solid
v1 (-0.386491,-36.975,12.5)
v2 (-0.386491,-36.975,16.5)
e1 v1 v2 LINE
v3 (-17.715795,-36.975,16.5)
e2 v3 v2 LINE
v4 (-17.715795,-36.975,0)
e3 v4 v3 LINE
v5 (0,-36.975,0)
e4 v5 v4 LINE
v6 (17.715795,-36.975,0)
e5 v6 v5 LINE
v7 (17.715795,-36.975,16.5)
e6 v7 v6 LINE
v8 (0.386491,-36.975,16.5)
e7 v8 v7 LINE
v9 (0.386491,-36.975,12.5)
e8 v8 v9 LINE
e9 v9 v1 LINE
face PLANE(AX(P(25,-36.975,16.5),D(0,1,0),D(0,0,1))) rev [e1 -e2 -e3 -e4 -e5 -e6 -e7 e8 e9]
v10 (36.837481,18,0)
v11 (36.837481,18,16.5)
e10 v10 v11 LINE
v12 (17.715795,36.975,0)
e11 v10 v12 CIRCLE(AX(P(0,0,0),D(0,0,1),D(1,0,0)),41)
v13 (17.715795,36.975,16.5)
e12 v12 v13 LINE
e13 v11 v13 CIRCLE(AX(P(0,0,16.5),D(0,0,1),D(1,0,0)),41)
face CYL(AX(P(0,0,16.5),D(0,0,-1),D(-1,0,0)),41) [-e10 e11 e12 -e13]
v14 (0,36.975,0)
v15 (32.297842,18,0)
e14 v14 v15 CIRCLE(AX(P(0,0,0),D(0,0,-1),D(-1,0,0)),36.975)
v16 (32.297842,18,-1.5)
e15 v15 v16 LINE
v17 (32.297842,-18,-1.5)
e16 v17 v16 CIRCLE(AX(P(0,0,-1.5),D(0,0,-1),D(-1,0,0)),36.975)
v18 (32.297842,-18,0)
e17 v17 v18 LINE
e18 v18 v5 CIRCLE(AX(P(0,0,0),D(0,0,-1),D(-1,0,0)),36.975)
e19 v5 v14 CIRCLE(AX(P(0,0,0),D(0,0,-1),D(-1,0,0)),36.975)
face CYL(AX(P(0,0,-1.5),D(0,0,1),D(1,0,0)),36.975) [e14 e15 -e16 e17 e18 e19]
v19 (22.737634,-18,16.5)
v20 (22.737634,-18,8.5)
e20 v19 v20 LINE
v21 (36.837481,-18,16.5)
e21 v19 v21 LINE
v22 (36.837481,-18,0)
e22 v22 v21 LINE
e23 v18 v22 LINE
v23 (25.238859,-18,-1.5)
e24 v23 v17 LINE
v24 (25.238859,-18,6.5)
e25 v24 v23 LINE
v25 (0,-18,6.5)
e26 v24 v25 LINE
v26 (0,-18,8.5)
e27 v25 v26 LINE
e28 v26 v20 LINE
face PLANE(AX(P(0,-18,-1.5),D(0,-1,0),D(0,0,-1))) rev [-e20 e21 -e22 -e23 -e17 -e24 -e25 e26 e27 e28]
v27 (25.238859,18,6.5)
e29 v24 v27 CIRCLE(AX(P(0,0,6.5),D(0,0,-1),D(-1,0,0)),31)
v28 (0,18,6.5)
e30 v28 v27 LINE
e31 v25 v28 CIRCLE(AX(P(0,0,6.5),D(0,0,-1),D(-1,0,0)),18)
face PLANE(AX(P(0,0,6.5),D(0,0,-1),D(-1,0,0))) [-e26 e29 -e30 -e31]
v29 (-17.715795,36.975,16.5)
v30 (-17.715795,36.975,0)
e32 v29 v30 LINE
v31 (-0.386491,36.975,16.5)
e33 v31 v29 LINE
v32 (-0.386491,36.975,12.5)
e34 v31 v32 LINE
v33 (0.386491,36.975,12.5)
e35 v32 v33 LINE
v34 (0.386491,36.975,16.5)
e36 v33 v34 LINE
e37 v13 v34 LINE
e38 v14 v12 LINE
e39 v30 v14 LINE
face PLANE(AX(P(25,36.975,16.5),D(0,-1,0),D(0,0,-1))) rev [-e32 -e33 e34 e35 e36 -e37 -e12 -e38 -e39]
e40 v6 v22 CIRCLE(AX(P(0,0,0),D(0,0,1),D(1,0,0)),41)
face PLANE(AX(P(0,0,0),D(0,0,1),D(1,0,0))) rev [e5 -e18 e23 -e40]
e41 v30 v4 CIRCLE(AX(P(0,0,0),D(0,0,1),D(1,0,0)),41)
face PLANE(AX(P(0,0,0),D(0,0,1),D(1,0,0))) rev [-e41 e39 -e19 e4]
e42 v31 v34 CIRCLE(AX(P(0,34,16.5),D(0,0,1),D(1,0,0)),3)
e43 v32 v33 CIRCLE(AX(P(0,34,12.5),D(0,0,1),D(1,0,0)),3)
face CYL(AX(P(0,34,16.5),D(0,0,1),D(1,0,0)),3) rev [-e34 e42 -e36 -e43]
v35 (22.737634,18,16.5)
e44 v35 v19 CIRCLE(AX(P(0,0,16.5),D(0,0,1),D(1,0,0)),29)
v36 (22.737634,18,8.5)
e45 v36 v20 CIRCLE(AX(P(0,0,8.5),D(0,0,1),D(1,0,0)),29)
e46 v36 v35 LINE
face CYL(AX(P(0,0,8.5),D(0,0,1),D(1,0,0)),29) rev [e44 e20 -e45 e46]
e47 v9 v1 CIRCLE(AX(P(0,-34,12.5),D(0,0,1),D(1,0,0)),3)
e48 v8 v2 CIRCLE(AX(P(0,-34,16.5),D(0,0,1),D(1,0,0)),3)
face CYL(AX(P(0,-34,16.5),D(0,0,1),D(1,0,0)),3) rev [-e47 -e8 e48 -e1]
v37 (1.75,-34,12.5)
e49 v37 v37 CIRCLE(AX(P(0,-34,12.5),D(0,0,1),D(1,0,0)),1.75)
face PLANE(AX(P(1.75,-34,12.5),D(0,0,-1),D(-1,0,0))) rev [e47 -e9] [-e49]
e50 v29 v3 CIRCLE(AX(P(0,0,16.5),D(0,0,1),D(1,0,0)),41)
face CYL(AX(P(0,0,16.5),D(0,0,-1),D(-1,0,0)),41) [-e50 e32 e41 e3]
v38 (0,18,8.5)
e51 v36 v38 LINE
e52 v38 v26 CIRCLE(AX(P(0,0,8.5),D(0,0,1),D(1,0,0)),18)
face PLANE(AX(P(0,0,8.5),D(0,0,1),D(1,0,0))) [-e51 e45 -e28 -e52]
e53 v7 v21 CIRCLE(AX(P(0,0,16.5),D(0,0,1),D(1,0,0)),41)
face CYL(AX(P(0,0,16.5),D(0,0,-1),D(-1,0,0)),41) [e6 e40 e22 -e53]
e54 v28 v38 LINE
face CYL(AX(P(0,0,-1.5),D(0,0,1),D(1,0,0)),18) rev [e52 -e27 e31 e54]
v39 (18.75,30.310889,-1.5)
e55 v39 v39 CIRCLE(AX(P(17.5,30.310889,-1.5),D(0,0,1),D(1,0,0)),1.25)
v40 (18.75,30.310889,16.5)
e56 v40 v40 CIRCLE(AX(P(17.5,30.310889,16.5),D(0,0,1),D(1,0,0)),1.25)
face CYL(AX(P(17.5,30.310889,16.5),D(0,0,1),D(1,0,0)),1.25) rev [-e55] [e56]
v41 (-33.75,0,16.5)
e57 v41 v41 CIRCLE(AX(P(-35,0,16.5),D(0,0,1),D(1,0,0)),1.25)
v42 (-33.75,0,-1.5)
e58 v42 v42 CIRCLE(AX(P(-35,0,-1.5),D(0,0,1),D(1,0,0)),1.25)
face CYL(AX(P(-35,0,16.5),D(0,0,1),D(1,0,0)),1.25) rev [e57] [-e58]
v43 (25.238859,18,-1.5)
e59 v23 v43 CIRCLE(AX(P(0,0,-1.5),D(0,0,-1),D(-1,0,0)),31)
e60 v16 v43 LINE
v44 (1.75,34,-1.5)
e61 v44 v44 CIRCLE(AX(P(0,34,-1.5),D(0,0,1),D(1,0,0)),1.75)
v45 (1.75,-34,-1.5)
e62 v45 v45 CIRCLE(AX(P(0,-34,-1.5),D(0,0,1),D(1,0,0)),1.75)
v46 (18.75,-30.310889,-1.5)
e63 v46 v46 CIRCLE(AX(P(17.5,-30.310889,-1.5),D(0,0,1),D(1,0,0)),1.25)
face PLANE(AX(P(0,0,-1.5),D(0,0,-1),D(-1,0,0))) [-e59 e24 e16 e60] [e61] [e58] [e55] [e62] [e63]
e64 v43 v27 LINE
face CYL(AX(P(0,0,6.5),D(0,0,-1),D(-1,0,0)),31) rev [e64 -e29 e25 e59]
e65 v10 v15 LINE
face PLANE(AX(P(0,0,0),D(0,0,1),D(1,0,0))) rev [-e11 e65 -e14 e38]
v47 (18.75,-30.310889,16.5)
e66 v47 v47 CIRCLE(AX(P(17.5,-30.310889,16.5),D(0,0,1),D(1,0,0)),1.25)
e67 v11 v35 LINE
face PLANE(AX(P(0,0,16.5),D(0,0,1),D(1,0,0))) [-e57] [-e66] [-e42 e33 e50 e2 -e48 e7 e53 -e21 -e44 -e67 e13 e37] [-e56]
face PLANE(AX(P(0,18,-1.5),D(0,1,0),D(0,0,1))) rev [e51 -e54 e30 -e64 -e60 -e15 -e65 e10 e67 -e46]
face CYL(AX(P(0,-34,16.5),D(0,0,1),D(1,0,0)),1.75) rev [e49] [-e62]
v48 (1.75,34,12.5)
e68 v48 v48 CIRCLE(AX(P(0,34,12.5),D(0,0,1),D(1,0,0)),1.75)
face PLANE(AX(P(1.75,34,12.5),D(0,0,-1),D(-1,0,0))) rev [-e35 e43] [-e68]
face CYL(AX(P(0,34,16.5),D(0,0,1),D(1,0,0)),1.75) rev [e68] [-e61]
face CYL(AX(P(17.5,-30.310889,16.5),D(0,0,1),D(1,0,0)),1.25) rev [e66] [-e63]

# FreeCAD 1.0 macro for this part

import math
import FreeCAD as App
import Part
import Sketcher

V = App.Vector

doc = App.newDocument("Part")
params = doc.addObject("Spreadsheet::Sheet", "Params")
for row, (alias, value) in enumerate([
    ("sketch1_diameter", "82 mm"),
    ("pad1_length", "16.5 mm"),
    ("sketch2_diameter", "73.95 mm"),
    ("pad2_length", "1.5 mm"),
    ("sketch3_width", "50 mm"),
    ("sketch4_diameter", "62 mm"),
    ("pocket2_length", "8 mm"),
    ("sketch5_diameter", "58 mm"),
    ("pocket3_length", "8 mm"),
    ("sketch6_radius", "18 mm"),
    ("sketch6_radius2", "41 mm"),
    ("sketch7_diameter", "3.5 mm"),
    ("hole_diameter", "3.5 mm"),
    ("hole_cbore_diameter", "6 mm"),
    ("hole_cbore_depth", "4 mm"),
    ("sketch8_diameter", "2.5 mm"),
    ("hole2_diameter", "2.5 mm"),
], start=1):
    params.set(f"A{row}", alias)
    params.set(f"B{row}", "=" + value)
    params.setAlias(f"B{row}", alias)

body = doc.addObject("PartDesign::Body", "Body")

sketch1 = doc.addObject("Sketcher::SketchObject", "Sketch")
body.addObject(sketch1)
sketch1.AttachmentSupport = (doc.XY_Plane, [""])
sketch1.MapMode = "FlatFace"
sketch1.addGeometry(Part.Circle(V(0, 0, 0), V(0, 0, 1), 41), False)
sketch1.addConstraint(Sketcher.Constraint("Coincident", 0, 3, -1, 1))
sketch1.addConstraint(Sketcher.Constraint("Diameter", 0, 82.0))
sketch1.setExpression("Constraints[1]", "Params.sketch1_diameter")
pad1 = doc.addObject("PartDesign::Pad", "Pad")
body.addObject(pad1)
pad1.Profile = sketch1
pad1.setExpression("Length", "Params.pad1_length")

sketch2 = doc.addObject("Sketcher::SketchObject", "Sketch001")
body.addObject(sketch2)
sketch2.AttachmentSupport = (doc.XY_Plane, [""])
sketch2.MapMode = "FlatFace"
sketch2.addGeometry(Part.Circle(V(0, 0, 0), V(0, 0, 1), 36.975), False)
sketch2.addConstraint(Sketcher.Constraint("Coincident", 0, 3, -1, 1))
sketch2.addConstraint(Sketcher.Constraint("Diameter", 0, 73.95))
sketch2.setExpression("Constraints[1]", "Params.sketch2_diameter")
pad2 = doc.addObject("PartDesign::Pad", "Pad001")
body.addObject(pad2)
pad2.Profile = sketch2
pad2.setExpression("Length", "Params.pad2_length")
pad2.Reversed = True

sketch3 = doc.addObject("Sketcher::SketchObject", "Sketch002")
body.addObject(sketch3)
sketch3.AttachmentSupport = (doc.XY_Plane, [""])
sketch3.MapMode = "FlatFace"
sketch3.AttachmentOffset = App.Placement(V(0, 0, -1.5), App.Rotation())
sketch3.addGeometry(Part.LineSegment(V(25, 43.815022, 0), V(25, 36.975, 0)), False)
sketch3.addGeometry(Part.LineSegment(V(25, 36.975, 0), V(-25, 36.975, 0)), False)
sketch3.addGeometry(Part.LineSegment(V(-25, 36.975, 0), V(-25, 43.815022, 0)), False)
sketch3.addGeometry(Part.LineSegment(V(-25, 43.815022, 0), V(25, 43.815022, 0)), False)
sketch3.addGeometry(Part.LineSegment(V(25, -36.975, 0), V(25, -43.815022, 0)), False)
sketch3.addGeometry(Part.LineSegment(V(25, -43.815022, 0), V(-25, -43.815022, 0)), False)
sketch3.addGeometry(Part.LineSegment(V(-25, -43.815022, 0), V(-25, -36.975, 0)), False)
sketch3.addGeometry(Part.LineSegment(V(-25, -36.975, 0), V(25, -36.975, 0)), False)
sketch3.addConstraint(Sketcher.Constraint("Coincident", 0, 2, 1, 1))
sketch3.addConstraint(Sketcher.Constraint("Coincident", 1, 2, 2, 1))
sketch3.addConstraint(Sketcher.Constraint("Coincident", 2, 2, 3, 1))
sketch3.addConstraint(Sketcher.Constraint("Coincident", 3, 2, 0, 1))
sketch3.addConstraint(Sketcher.Constraint("Coincident", 4, 2, 5, 1))
sketch3.addConstraint(Sketcher.Constraint("Coincident", 5, 2, 6, 1))
sketch3.addConstraint(Sketcher.Constraint("Coincident", 6, 2, 7, 1))
sketch3.addConstraint(Sketcher.Constraint("Coincident", 7, 2, 4, 1))
sketch3.addConstraint(Sketcher.Constraint("Vertical", 0))
sketch3.addConstraint(Sketcher.Constraint("Horizontal", 1))
sketch3.addConstraint(Sketcher.Constraint("Vertical", 2))
sketch3.addConstraint(Sketcher.Constraint("Horizontal", 3))
sketch3.addConstraint(Sketcher.Constraint("Vertical", 4))
sketch3.addConstraint(Sketcher.Constraint("Horizontal", 5))
sketch3.addConstraint(Sketcher.Constraint("Vertical", 6))
sketch3.addConstraint(Sketcher.Constraint("Horizontal", 7))
sketch3.addConstraint(Sketcher.Constraint("Symmetric", 2, 2, 4, 2, -1, 1))
sketch3.addConstraint(Sketcher.Constraint("Symmetric", 0, 2, 6, 2, -1, 1))
sketch3.addConstraint(Sketcher.Constraint("Vertical", 3, 2, 4, 2))
sketch3.addConstraint(Sketcher.Constraint("DistanceX", 1, 2, 1, 1, 50.0))
sketch3.addConstraint(Sketcher.Constraint("DistanceY", 6, 2, 1, 2, 73.95))
sketch3.addConstraint(Sketcher.Constraint("DistanceY", 0, 2, 0, 1, 6.840022))
sketch3.setExpression("Constraints[19]", "Params.sketch3_width")
pocket1 = doc.addObject("PartDesign::Pocket", "Pocket")
body.addObject(pocket1)
pocket1.Profile = sketch3
pocket1.Type = "ThroughAll"
pocket1.Reversed = True

sketch4 = doc.addObject("Sketcher::SketchObject", "Sketch003")
body.addObject(sketch4)
sketch4.AttachmentSupport = (doc.XY_Plane, [""])
sketch4.MapMode = "FlatFace"
sketch4.AttachmentOffset = App.Placement(V(0, 0, -1.5), App.Rotation())
sketch4.addGeometry(Part.Circle(V(0, 0, 0), V(0, 0, 1), 31), False)
sketch4.addConstraint(Sketcher.Constraint("Coincident", 0, 3, -1, 1))
sketch4.addConstraint(Sketcher.Constraint("Diameter", 0, 62.0))
sketch4.setExpression("Constraints[1]", "Params.sketch4_diameter")
pocket2 = doc.addObject("PartDesign::Pocket", "Pocket001")
body.addObject(pocket2)
pocket2.Profile = sketch4
pocket2.setExpression("Length", "Params.pocket2_length")
pocket2.Reversed = True

sketch5 = doc.addObject("Sketcher::SketchObject", "Sketch004")
body.addObject(sketch5)
sketch5.AttachmentSupport = (doc.XY_Plane, [""])
sketch5.MapMode = "FlatFace"
sketch5.AttachmentOffset = App.Placement(V(0, 0, 16.5), App.Rotation())
sketch5.addGeometry(Part.Circle(V(0, 0, 0), V(0, 0, 1), 29), False)
sketch5.addConstraint(Sketcher.Constraint("Coincident", 0, 3, -1, 1))
sketch5.addConstraint(Sketcher.Constraint("Diameter", 0, 58.0))
sketch5.setExpression("Constraints[1]", "Params.sketch5_diameter")
pocket3 = doc.addObject("PartDesign::Pocket", "Pocket002")
body.addObject(pocket3)
pocket3.Profile = sketch5
pocket3.setExpression("Length", "Params.pocket3_length")

sketch6 = doc.addObject("Sketcher::SketchObject", "Sketch005")
body.addObject(sketch6)
sketch6.AttachmentSupport = (doc.XY_Plane, [""])
sketch6.MapMode = "FlatFace"
sketch6.AttachmentOffset = App.Placement(V(0, 0, 8.5), App.Rotation())
sketch6.addGeometry(Part.LineSegment(V(36.837481, 18, 0), V(0, 18, 0)), False)
sketch6.addGeometry(Part.ArcOfCircle(Part.Circle(V(0, 0, 0), V(0, 0, 1), 18), math.radians(90), math.radians(270)), False)
sketch6.addGeometry(Part.LineSegment(V(0, -18, 0), V(36.837481, -18, 0)), False)
sketch6.addGeometry(Part.ArcOfCircle(Part.Circle(V(0, 0, 0), V(0, 0, 1), 41), math.radians(-26.04165), math.radians(26.04165)), False)
sketch6.addConstraint(Sketcher.Constraint("Tangent", 0, 2, 1, 1))
sketch6.addConstraint(Sketcher.Constraint("Tangent", 1, 2, 2, 1))
sketch6.addConstraint(Sketcher.Constraint("Coincident", 2, 2, 3, 1))
sketch6.addConstraint(Sketcher.Constraint("Coincident", 3, 2, 0, 1))
sketch6.addConstraint(Sketcher.Constraint("Horizontal", 0))
sketch6.addConstraint(Sketcher.Constraint("Horizontal", 2))
sketch6.addConstraint(Sketcher.Constraint("Coincident", 1, 3, -1, 1))
sketch6.addConstraint(Sketcher.Constraint("Coincident", 3, 3, -1, 1))
sketch6.addConstraint(Sketcher.Constraint("Radius", 1, 18.0))
sketch6.addConstraint(Sketcher.Constraint("Radius", 3, 41.0))
sketch6.setExpression("Constraints[8]", "Params.sketch6_radius")
sketch6.setExpression("Constraints[9]", "Params.sketch6_radius2")
pocket4 = doc.addObject("PartDesign::Pocket", "Pocket003")
body.addObject(pocket4)
pocket4.Profile = sketch6
pocket4.Type = "ThroughAll"
pocket4.Midplane = True

sketch7 = doc.addObject("Sketcher::SketchObject", "Sketch006")
body.addObject(sketch7)
sketch7.AttachmentSupport = (doc.XY_Plane, [""])
sketch7.MapMode = "FlatFace"
sketch7.AttachmentOffset = App.Placement(V(0, 0, 16.5), App.Rotation())
sketch7.addGeometry(Part.Circle(V(0, 34, 0), V(0, 0, 1), 1.75), False)
sketch7.addGeometry(Part.Circle(V(0, -34, 0), V(0, 0, 1), 1.75), False)
sketch7.addConstraint(Sketcher.Constraint("Equal", 0, 1))
sketch7.addConstraint(Sketcher.Constraint("Symmetric", 0, 3, 1, 3, -1, 1))
sketch7.addConstraint(Sketcher.Constraint("PointOnObject", 0, 3, -2))
sketch7.addConstraint(Sketcher.Constraint("Diameter", 0, 3.5))
sketch7.addConstraint(Sketcher.Constraint("DistanceY", -1, 1, 0, 3, 34.0))
sketch7.setExpression("Constraints[3]", "Params.sketch7_diameter")
doc.recompute()
hole = doc.addObject("PartDesign::Hole", "Hole")
body.addObject(hole)
hole.Profile = sketch7
hole.ThreadType = "None"
hole.setExpression("Diameter", "Params.hole_diameter")
hole.DepthType = "ThroughAll"
hole.HoleCutType = "Counterbore"
hole.setExpression("HoleCutDiameter", "Params.hole_cbore_diameter")
hole.setExpression("HoleCutDepth", "Params.hole_cbore_depth")

sketch8 = doc.addObject("Sketcher::SketchObject", "Sketch007")
body.addObject(sketch8)
sketch8.AttachmentSupport = (doc.XY_Plane, [""])
sketch8.MapMode = "FlatFace"
sketch8.AttachmentOffset = App.Placement(V(0, 0, 16.5), App.Rotation())
sketch8.addGeometry(Part.Circle(V(-35, 0, 0), V(0, 0, 1), 1.25), False)
sketch8.addConstraint(Sketcher.Constraint("PointOnObject", 0, 3, -1))
sketch8.addConstraint(Sketcher.Constraint("Diameter", 0, 2.5))
sketch8.addConstraint(Sketcher.Constraint("DistanceX", 0, 3, -1, 1, 35.0))
sketch8.setExpression("Constraints[1]", "Params.sketch8_diameter")
doc.recompute()
hole2 = doc.addObject("PartDesign::Hole", "Hole001")
body.addObject(hole2)
hole2.Profile = sketch8
hole2.ThreadType = "None"
hole2.setExpression("Diameter", "Params.hole2_diameter")
hole2.DepthType = "ThroughAll"
doc.recompute()

polarpattern = doc.addObject("PartDesign::PolarPattern", "PolarPattern")
body.addObject(polarpattern)
polarpattern.Originals = [hole2]
polarpattern.Axis = (doc.Z_Axis, [""])
polarpattern.Angle = 360
polarpattern.Occurrences = 3
body.Tip = polarpattern

doc.recompute()
